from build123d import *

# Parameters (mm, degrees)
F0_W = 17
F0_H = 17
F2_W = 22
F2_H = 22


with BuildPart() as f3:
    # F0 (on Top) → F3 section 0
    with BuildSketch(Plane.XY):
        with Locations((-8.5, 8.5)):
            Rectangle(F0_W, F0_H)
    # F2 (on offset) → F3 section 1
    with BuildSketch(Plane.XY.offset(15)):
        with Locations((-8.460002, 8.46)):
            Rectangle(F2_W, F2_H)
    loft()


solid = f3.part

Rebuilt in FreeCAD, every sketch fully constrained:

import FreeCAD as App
import Part
import Sketcher
from FreeCAD import Vector


def add_polygon(sketch, points):
    """Adds a closed chain of lines whose ends are joined by coincident constraints."""
    first, n = sketch.GeometryCount, len(points)
    for a, b in zip(points, points[1:] + points[:1]):
        sketch.addGeometry(Part.LineSegment(App.Vector(*a, 0), App.Vector(*b, 0)), False)
    for i in range(n):
        sketch.addConstraint(Sketcher.Constraint("Coincident", first + i, 2, first + (i + 1) % n, 1))

doc = App.newDocument("Part")
body = doc.addObject("PartDesign::Body", "Body")

# Sketch on XY plane
sketch1 = body.newObject("Sketcher::SketchObject", "Sketch")
sketch1.AttachmentSupport = (doc.getObject("XY_Plane"), [""])
sketch1.MapMode = "FlatFace"
add_polygon(sketch1, [(-17, 17), (-17, 0), (0, 0), (0, 17)])  # lines 0-3
sketch1.addConstraint([
    Sketcher.Constraint("Vertical", 0),
    Sketcher.Constraint("Horizontal", 1),
    Sketcher.Constraint("Vertical", 2),
    Sketcher.Constraint("Horizontal", 3),
    Sketcher.Constraint("Coincident", 1, 2, -1, 1),
    Sketcher.Constraint("Equal", 3, 0),
    Sketcher.Constraint("DistanceX", 1, 1, 1, 2, 17.0),
])

# Sketch on XY plane
sketch2 = body.newObject("Sketcher::SketchObject", "Sketch001")
sketch2.AttachmentSupport = (doc.getObject("XY_Plane"), [""])
sketch2.MapMode = "FlatFace"
sketch2.AttachmentOffset = App.Placement(Vector(0, 0, 15), App.Rotation())
add_polygon(sketch2, [(-19.460002, 19.46), (-19.460002, -2.54), (2.539998, -2.54), (2.539998, 19.46)])  # lines 0-3
sketch2.addConstraint([
    Sketcher.Constraint("Vertical", 0),
    Sketcher.Constraint("Horizontal", 1),
    Sketcher.Constraint("Vertical", 2),
    Sketcher.Constraint("Horizontal", 3),
    Sketcher.Constraint("Equal", 3, 0),
    Sketcher.Constraint("DistanceX", 1, 1, 1, 2, 22.0),
    Sketcher.Constraint("DistanceX", 0, 2, -1, 1, 19.460002),
    Sketcher.Constraint("DistanceY", 0, 2, -1, 1, 2.54),
])

additiveloft = body.newObject("PartDesign::AdditiveLoft", "AdditiveLoft")
additiveloft.Profile = sketch1
additiveloft.Sections = [sketch2]

doc.recompute()
